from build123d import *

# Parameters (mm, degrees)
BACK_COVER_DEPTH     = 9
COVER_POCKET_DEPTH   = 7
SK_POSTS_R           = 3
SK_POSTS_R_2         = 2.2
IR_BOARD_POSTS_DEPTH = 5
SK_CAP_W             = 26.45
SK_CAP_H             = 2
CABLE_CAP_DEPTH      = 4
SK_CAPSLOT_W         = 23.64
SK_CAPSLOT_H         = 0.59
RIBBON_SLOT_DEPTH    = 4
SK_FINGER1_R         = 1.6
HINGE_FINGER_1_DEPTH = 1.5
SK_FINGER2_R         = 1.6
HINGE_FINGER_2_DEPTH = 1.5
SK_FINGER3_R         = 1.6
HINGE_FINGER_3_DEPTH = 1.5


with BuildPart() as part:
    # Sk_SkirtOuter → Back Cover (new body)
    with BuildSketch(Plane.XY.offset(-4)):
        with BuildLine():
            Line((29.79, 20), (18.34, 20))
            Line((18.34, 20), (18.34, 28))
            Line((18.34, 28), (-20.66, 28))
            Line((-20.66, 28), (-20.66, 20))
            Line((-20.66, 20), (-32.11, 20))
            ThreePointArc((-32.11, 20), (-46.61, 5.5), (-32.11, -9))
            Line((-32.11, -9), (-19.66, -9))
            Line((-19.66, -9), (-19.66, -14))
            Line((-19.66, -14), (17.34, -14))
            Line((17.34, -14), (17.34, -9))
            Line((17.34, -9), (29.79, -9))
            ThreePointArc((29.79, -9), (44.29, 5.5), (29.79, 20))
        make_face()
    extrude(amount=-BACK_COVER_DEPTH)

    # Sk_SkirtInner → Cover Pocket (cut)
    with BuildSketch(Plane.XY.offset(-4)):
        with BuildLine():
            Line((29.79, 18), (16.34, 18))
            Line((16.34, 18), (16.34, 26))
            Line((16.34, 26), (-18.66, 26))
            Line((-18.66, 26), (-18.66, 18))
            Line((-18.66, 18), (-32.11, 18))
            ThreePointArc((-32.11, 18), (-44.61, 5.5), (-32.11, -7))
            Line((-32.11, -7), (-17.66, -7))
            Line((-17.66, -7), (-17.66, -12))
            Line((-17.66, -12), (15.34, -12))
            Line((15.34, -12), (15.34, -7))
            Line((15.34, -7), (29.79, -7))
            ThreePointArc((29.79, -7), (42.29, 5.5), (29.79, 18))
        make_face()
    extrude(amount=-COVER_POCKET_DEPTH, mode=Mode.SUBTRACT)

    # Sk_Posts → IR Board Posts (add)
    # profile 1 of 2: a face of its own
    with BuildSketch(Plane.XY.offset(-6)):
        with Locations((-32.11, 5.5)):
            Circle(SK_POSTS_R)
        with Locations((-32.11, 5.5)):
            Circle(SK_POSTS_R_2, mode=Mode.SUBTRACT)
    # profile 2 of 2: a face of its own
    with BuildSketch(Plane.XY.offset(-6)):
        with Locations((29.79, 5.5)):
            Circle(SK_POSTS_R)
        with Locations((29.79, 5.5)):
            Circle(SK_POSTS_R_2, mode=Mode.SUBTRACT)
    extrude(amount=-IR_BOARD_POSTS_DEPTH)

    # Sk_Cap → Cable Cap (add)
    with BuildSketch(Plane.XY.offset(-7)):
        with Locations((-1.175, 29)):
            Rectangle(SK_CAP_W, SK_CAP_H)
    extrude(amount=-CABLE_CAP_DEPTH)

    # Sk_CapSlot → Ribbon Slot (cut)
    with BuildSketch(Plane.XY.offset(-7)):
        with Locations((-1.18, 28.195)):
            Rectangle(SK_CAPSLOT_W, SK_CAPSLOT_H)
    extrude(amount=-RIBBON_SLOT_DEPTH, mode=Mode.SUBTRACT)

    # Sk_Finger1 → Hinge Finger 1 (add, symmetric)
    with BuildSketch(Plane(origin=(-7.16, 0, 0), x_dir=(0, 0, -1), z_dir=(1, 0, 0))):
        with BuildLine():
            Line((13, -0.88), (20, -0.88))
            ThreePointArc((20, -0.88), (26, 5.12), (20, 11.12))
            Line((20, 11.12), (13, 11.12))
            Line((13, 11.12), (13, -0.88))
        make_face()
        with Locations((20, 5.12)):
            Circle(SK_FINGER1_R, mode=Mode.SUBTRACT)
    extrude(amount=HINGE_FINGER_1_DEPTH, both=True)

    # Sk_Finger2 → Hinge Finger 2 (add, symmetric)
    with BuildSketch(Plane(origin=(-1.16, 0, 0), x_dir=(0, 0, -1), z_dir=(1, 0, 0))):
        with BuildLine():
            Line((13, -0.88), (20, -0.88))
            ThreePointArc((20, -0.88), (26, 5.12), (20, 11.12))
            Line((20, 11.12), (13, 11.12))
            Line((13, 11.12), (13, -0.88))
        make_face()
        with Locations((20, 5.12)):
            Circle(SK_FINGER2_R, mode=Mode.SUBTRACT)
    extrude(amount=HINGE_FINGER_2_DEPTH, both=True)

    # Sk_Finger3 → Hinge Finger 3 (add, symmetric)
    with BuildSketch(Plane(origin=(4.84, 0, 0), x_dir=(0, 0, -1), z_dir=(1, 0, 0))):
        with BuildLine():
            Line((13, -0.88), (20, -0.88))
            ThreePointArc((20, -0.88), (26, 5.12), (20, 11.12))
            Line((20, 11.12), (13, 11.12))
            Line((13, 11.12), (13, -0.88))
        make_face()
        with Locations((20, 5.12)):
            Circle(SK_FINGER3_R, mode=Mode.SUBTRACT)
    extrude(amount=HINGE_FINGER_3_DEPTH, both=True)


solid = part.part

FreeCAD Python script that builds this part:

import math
import FreeCAD as App
import Part
import Sketcher
from FreeCAD import Vector


def add_polygon(sketch, points):
    """Adds a closed chain of lines whose ends are joined by coincident constraints."""
    first, n = sketch.GeometryCount, len(points)
    for a, b in zip(points, points[1:] + points[:1]):
        sketch.addGeometry(Part.LineSegment(App.Vector(*a, 0), App.Vector(*b, 0)), False)
    for i in range(n):
        sketch.addConstraint(Sketcher.Constraint("Coincident", first + i, 2, first + (i + 1) % n, 1))

doc = App.newDocument("Part")
params = doc.addObject("Spreadsheet::Sheet", "Params")
for row, (alias, value) in enumerate([
    ("sketch1_radius", "14.5 mm"),
    ("sketch1_width", "39 mm"),
    ("sketch1_width2", "37 mm"),
    ("sketch1_height", "8 mm"),
    ("sketch1_height2", "5 mm"),
    ("pad1_length", "9 mm"),
    ("sketch2_radius", "12.5 mm"),
    ("sketch2_width", "35 mm"),
    ("sketch2_width2", "33 mm"),
    ("sketch2_height", "8 mm"),
    ("sketch2_height2", "5 mm"),
    ("pocket1_length", "7 mm"),
    ("sketch3_diameter", "6 mm"),
    ("sketch3_diameter2", "4.4 mm"),
    ("pad2_length", "5 mm"),
    ("sketch4_height", "2 mm"),
    ("sketch4_width", "26.45 mm"),
    ("pad3_length", "4 mm"),
    ("sketch5_width", "23.64 mm"),
    ("sketch5_height", "0.59 mm"),
    ("pocket2_length", "4 mm"),
    ("sketch6_radius", "6 mm"),
    ("sketch6_diameter", "3.2 mm"),
    ("sketch6_height", "7 mm"),
    ("pad4_length", "3 mm"),
    ("sketch7_radius", "6 mm"),
    ("sketch7_diameter", "3.2 mm"),
    ("sketch7_height", "7 mm"),
    ("pad5_length", "3 mm"),
    ("sketch8_radius", "6 mm"),
    ("sketch8_diameter", "3.2 mm"),
    ("sketch8_height", "7 mm"),
    ("pad6_length", "3 mm"),
], start=1):
    params.set(f"A{row}", alias)
    params.set(f"B{row}", "=" + value)
    params.setAlias(f"B{row}", alias)

body = doc.addObject("PartDesign::Body", "Body")

# Sketch on XY plane
sketch1 = body.newObject("Sketcher::SketchObject", "Sketch")
sketch1.AttachmentSupport = (doc.getObject("XY_Plane"), [""])
sketch1.MapMode = "FlatFace"
sketch1.AttachmentOffset = App.Placement(Vector(0, 0, -4), App.Rotation())
sketch1.addGeometry([
    Part.LineSegment(Vector(30, 20, 0), Vector(18, 20, 0)),  # 0
    Part.LineSegment(Vector(18, 20, 0), Vector(18, 28, 0)),  # 1
    Part.LineSegment(Vector(18, 28, 0), Vector(-21, 28, 0)),  # 2
    Part.LineSegment(Vector(-21, 28, 0), Vector(-21, 20, 0)),  # 3
    Part.LineSegment(Vector(-21, 20, 0), Vector(-32, 20, 0)),  # 4
    Part.ArcOfCircle(Part.Circle(Vector(-32, 6, 0), Vector(0, 0, 1), 14), math.radians(90), math.radians(270)),  # 5
    Part.LineSegment(Vector(-32, -9, 0), Vector(-20, -9, 0)),  # 6
    Part.LineSegment(Vector(-20, -9, 0), Vector(-20, -14, 0)),  # 7
    Part.LineSegment(Vector(-20, -14, 0), Vector(17, -14, 0)),  # 8
    Part.LineSegment(Vector(17, -14, 0), Vector(17, -9, 0)),  # 9
    Part.LineSegment(Vector(17, -9, 0), Vector(30, -9, 0)),  # 10
    Part.ArcOfCircle(Part.Circle(Vector(30, 6, 0), Vector(0, 0, 1), 14), math.radians(-90), math.radians(90)),  # 11
], False)
sketch1.addConstraint([
    Sketcher.Constraint("Coincident", 0, 2, 1, 1),
    Sketcher.Constraint("Coincident", 1, 2, 2, 1),
    Sketcher.Constraint("Coincident", 2, 2, 3, 1),
    Sketcher.Constraint("Coincident", 3, 2, 4, 1),
    Sketcher.Constraint("Tangent", 4, 2, 5, 1),
    Sketcher.Constraint("Tangent", 5, 2, 6, 1),
    Sketcher.Constraint("Coincident", 6, 2, 7, 1),
    Sketcher.Constraint("Coincident", 7, 2, 8, 1),
    Sketcher.Constraint("Coincident", 8, 2, 9, 1),
    Sketcher.Constraint("Coincident", 9, 2, 10, 1),
    Sketcher.Constraint("Tangent", 10, 2, 11, 1),
    Sketcher.Constraint("Tangent", 11, 2, 0, 1),
    Sketcher.Constraint("Horizontal", 0),
    Sketcher.Constraint("Vertical", 1),
    Sketcher.Constraint("Horizontal", 2),
    Sketcher.Constraint("Vertical", 3),
    Sketcher.Constraint("Horizontal", 4),
    Sketcher.Constraint("Horizontal", 6),
    Sketcher.Constraint("Vertical", 7),
    Sketcher.Constraint("Horizontal", 8),
    Sketcher.Constraint("Vertical", 9),
    Sketcher.Constraint("Horizontal", 10),
    Sketcher.Constraint("Equal", 5, 11),
    Sketcher.Constraint("Horizontal", 5, 3, 11, 3),
    Sketcher.Constraint("Equal", 0, 4),
    Sketcher.Constraint("Equal", 6, 10),
    Sketcher.Constraint("Radius", 5, 14.5),
    Sketcher.Constraint("DistanceX", 2, 2, 2, 1, 39.0),
    Sketcher.Constraint("DistanceX", 8, 1, 8, 2, 37.0),
    Sketcher.Constraint("DistanceY", 1, 1, 1, 2, 8.0),
    Sketcher.Constraint("DistanceY", 7, 2, 7, 1, 5.0),
    Sketcher.Constraint("DistanceY", -1, 1, 0, 2, 20.0),
    Sketcher.Constraint("DistanceX", 0, 2, 0, 1, 11.45),
    Sketcher.Constraint("DistanceX", 5, 3, -1, 1, 32.11),
])
sketch1.setExpression("Constraints[26]", "Params.sketch1_radius")
sketch1.setExpression("Constraints[27]", "Params.sketch1_width")
sketch1.setExpression("Constraints[28]", "Params.sketch1_width2")
sketch1.setExpression("Constraints[29]", "Params.sketch1_height")
sketch1.setExpression("Constraints[30]", "Params.sketch1_height2")
pad1 = body.newObject("PartDesign::Pad", "Pad")
pad1.Profile = sketch1
pad1.setExpression("Length", "Params.pad1_length")
pad1.Reversed = True

# Sketch on XY plane
sketch2 = body.newObject("Sketcher::SketchObject", "Sketch001")
sketch2.AttachmentSupport = (doc.getObject("XY_Plane"), [""])
sketch2.MapMode = "FlatFace"
sketch2.AttachmentOffset = App.Placement(Vector(0, 0, -4), App.Rotation())
sketch2.addGeometry([
    Part.LineSegment(Vector(30, 18, 0), Vector(16, 18, 0)),  # 0
    Part.LineSegment(Vector(16, 18, 0), Vector(16, 26, 0)),  # 1
    Part.LineSegment(Vector(16, 26, 0), Vector(-19, 26, 0)),  # 2
    Part.LineSegment(Vector(-19, 26, 0), Vector(-19, 18, 0)),  # 3
    Part.LineSegment(Vector(-19, 18, 0), Vector(-32, 18, 0)),  # 4
    Part.ArcOfCircle(Part.Circle(Vector(-32, 6, 0), Vector(0, 0, 1), 12), math.radians(90), math.radians(270)),  # 5
    Part.LineSegment(Vector(-32, -7, 0), Vector(-18, -7, 0)),  # 6
    Part.LineSegment(Vector(-18, -7, 0), Vector(-18, -12, 0)),  # 7
    Part.LineSegment(Vector(-18, -12, 0), Vector(15, -12, 0)),  # 8
    Part.LineSegment(Vector(15, -12, 0), Vector(15, -7, 0)),  # 9
    Part.LineSegment(Vector(15, -7, 0), Vector(30, -7, 0)),  # 10
    Part.ArcOfCircle(Part.Circle(Vector(30, 6, 0), Vector(0, 0, 1), 12), math.radians(-90), math.radians(90)),  # 11
], False)
sketch2.addConstraint([
    Sketcher.Constraint("Coincident", 0, 2, 1, 1),
    Sketcher.Constraint("Coincident", 1, 2, 2, 1),
    Sketcher.Constraint("Coincident", 2, 2, 3, 1),
    Sketcher.Constraint("Coincident", 3, 2, 4, 1),
    Sketcher.Constraint("Tangent", 4, 2, 5, 1),
    Sketcher.Constraint("Tangent", 5, 2, 6, 1),
    Sketcher.Constraint("Coincident", 6, 2, 7, 1),
    Sketcher.Constraint("Coincident", 7, 2, 8, 1),
    Sketcher.Constraint("Coincident", 8, 2, 9, 1),
    Sketcher.Constraint("Coincident", 9, 2, 10, 1),
    Sketcher.Constraint("Tangent", 10, 2, 11, 1),
    Sketcher.Constraint("Tangent", 11, 2, 0, 1),
    Sketcher.Constraint("Horizontal", 0),
    Sketcher.Constraint("Vertical", 1),
    Sketcher.Constraint("Horizontal", 2),
    Sketcher.Constraint("Vertical", 3),
    Sketcher.Constraint("Horizontal", 4),
    Sketcher.Constraint("Horizontal", 6),
    Sketcher.Constraint("Vertical", 7),
    Sketcher.Constraint("Horizontal", 8),
    Sketcher.Constraint("Vertical", 9),
    Sketcher.Constraint("Horizontal", 10),
    Sketcher.Constraint("Equal", 5, 11),
    Sketcher.Constraint("Horizontal", 5, 3, 11, 3),
    Sketcher.Constraint("Equal", 0, 4),
    Sketcher.Constraint("Equal", 6, 10),
    Sketcher.Constraint("Radius", 5, 12.5),
    Sketcher.Constraint("DistanceX", 2, 2, 2, 1, 35.0),
    Sketcher.Constraint("DistanceX", 8, 1, 8, 2, 33.0),
    Sketcher.Constraint("DistanceY", 1, 1, 1, 2, 8.0),
    Sketcher.Constraint("DistanceY", 7, 2, 7, 1, 5.0),
    Sketcher.Constraint("DistanceY", -1, 1, 0, 2, 18.0),
    Sketcher.Constraint("DistanceX", 0, 2, 0, 1, 13.45),
    Sketcher.Constraint("DistanceX", 5, 3, -1, 1, 32.11),
])
sketch2.setExpression("Constraints[26]", "Params.sketch2_radius")
sketch2.setExpression("Constraints[27]", "Params.sketch2_width")
sketch2.setExpression("Constraints[28]", "Params.sketch2_width2")
sketch2.setExpression("Constraints[29]", "Params.sketch2_height")
sketch2.setExpression("Constraints[30]", "Params.sketch2_height2")
pocket1 = body.newObject("PartDesign::Pocket", "Pocket")
pocket1.Profile = sketch2
pocket1.setExpression("Length", "Params.pocket1_length")

# Sketch on XY plane
sketch3 = body.newObject("Sketcher::SketchObject", "Sketch002")
sketch3.AttachmentSupport = (doc.getObject("XY_Plane"), [""])
sketch3.MapMode = "FlatFace"
sketch3.AttachmentOffset = App.Placement(Vector(0, 0, -6), App.Rotation())
sketch3.addGeometry([
    Part.Circle(Vector(-32.1, 5.5, 0), Vector(0, 0, 1), 3),
    Part.Circle(Vector(-32.1, 5.5, 0), Vector(0, 0, 1), 2.2),
    Part.Circle(Vector(29.8, 5.5, 0), Vector(0, 0, 1), 3),
    Part.Circle(Vector(29.8, 5.5, 0), Vector(0, 0, 1), 2.2),
], False)
sketch3.addConstraint([
    Sketcher.Constraint("Coincident", 1, 3, 0, 3),
    Sketcher.Constraint("Coincident", 3, 3, 2, 3),
    Sketcher.Constraint("Equal", 0, 2),
    Sketcher.Constraint("Equal", 1, 3),
    Sketcher.Constraint("Horizontal", 1, 3, 2, 3),
    Sketcher.Constraint("Diameter", 0, 6.0),
    Sketcher.Constraint("Diameter", 1, 4.4),
    Sketcher.Constraint("DistanceY", -1, 1, 0, 3, 5.5),
    Sketcher.Constraint("DistanceX", 0, 3, 2, 3, 61.9),
    Sketcher.Constraint("DistanceX", 0, 3, -1, 1, 32.11),
])
sketch3.setExpression("Constraints[5]", "Params.sketch3_diameter")
sketch3.setExpression("Constraints[6]", "Params.sketch3_diameter2")
pad2 = body.newObject("PartDesign::Pad", "Pad001")
pad2.Profile = sketch3
pad2.setExpression("Length", "Params.pad2_length")
pad2.Reversed = True

# Sketch on XY plane
sketch4 = body.newObject("Sketcher::SketchObject", "Sketch003")
sketch4.AttachmentSupport = (doc.getObject("XY_Plane"), [""])
sketch4.MapMode = "FlatFace"
sketch4.AttachmentOffset = App.Placement(Vector(0, 0, -7), App.Rotation())
add_polygon(sketch4, [(-14.4, 30), (-14.4, 28), (12.1, 28), (12.1, 30)])  # lines 0-3
sketch4.addConstraint([
    Sketcher.Constraint("Vertical", 0),
    Sketcher.Constraint("Horizontal", 1),
    Sketcher.Constraint("Vertical", 2),
    Sketcher.Constraint("Horizontal", 3),
    Sketcher.Constraint("DistanceY", 0, 2, 0, 1, 2.0),
    Sketcher.Constraint("DistanceY", -1, 1, 0, 2, 28.0),
    Sketcher.Constraint("DistanceX", 1, 1, 1, 2, 26.45),
    Sketcher.Constraint("DistanceX", 0, 2, -1, 1, 14.4),
])
sketch4.setExpression("Constraints[8]", "Params.sketch4_height")
sketch4.setExpression("Constraints[10]", "Params.sketch4_width")
pad3 = body.newObject("PartDesign::Pad", "Pad002")
pad3.Profile = sketch4
pad3.setExpression("Length", "Params.pad3_length")
pad3.Reversed = True

# Sketch on XY plane
sketch5 = body.newObject("Sketcher::SketchObject", "Sketch004")
sketch5.AttachmentSupport = (doc.getObject("XY_Plane"), [""])
sketch5.MapMode = "FlatFace"
sketch5.AttachmentOffset = App.Placement(Vector(0, 0, -7), App.Rotation())
add_polygon(sketch5, [(-13, 28.5), (-13, 27.9), (10.6, 27.9), (10.6, 28.5)])  # lines 0-3
sketch5.addConstraint([
    Sketcher.Constraint("Vertical", 0),
    Sketcher.Constraint("Horizontal", 1),
    Sketcher.Constraint("Vertical", 2),
    Sketcher.Constraint("Horizontal", 3),
    Sketcher.Constraint("DistanceX", 0, 2, -1, 1, 13.0),
    Sketcher.Constraint("DistanceX", 1, 1, 1, 2, 23.64),
    Sketcher.Constraint("DistanceY", 0, 2, 0, 1, 0.59),
    Sketcher.Constraint("DistanceY", -1, 1, 0, 2, 27.9),
])
sketch5.setExpression("Constraints[9]", "Params.sketch5_width")
sketch5.setExpression("Constraints[10]", "Params.sketch5_height")
pocket2 = body.newObject("PartDesign::Pocket", "Pocket001")
pocket2.Profile = sketch5
pocket2.setExpression("Length", "Params.pocket2_length")

# Sketch on YZ plane
sketch6 = body.newObject("Sketcher::SketchObject", "Sketch005")
sketch6.AttachmentSupport = (doc.getObject("YZ_Plane"), [""])
sketch6.MapMode = "FlatFace"
sketch6.AttachmentOffset = App.Placement(Vector(0, 0, -7.16), App.Rotation())
sketch6.addGeometry([
    Part.LineSegment(Vector(-0.9, -13, 0), Vector(-0.9, -20, 0)),  # 0
    Part.ArcOfCircle(Part.Circle(Vector(5.1, -20, 0), Vector(0, 0, 1), 6), math.radians(180), math.radians(360)),  # 1
    Part.LineSegment(Vector(11.1, -20, 0), Vector(11.1, -13, 0)),  # 2
    Part.LineSegment(Vector(11.1, -13, 0), Vector(-0.9, -13, 0)),  # 3
    Part.Circle(Vector(5.1, -20, 0), Vector(0, 0, 1), 1.6),  # 4
], False)
sketch6.addConstraint([
    Sketcher.Constraint("Tangent", 0, 2, 1, 1),
    Sketcher.Constraint("Tangent", 1, 2, 2, 1),
    Sketcher.Constraint("Coincident", 2, 2, 3, 1),
    Sketcher.Constraint("Coincident", 3, 2, 0, 1),
    Sketcher.Constraint("Vertical", 0),
    Sketcher.Constraint("Vertical", 2),
    Sketcher.Constraint("Horizontal", 3),
    Sketcher.Constraint("Coincident", 4, 3, 1, 3),
    Sketcher.Constraint("Radius", 1, 6.0),
    Sketcher.Constraint("Diameter", 4, 3.2),
    Sketcher.Constraint("DistanceY", 0, 2, 0, 1, 7.0),
    Sketcher.Constraint("DistanceY", 1, 3, -1, 1, 20.0),
    Sketcher.Constraint("DistanceX", -1, 1, 1, 3, 5.12),
])
sketch6.setExpression("Constraints[8]", "Params.sketch6_radius")
sketch6.setExpression("Constraints[9]", "Params.sketch6_diameter")
sketch6.setExpression("Constraints[10]", "Params.sketch6_height")
pad4 = body.newObject("PartDesign::Pad", "Pad003")
pad4.Profile = sketch6
pad4.setExpression("Length", "Params.pad4_length")
pad4.Midplane = True

# Sketch on YZ plane
sketch7 = body.newObject("Sketcher::SketchObject", "Sketch006")
sketch7.AttachmentSupport = (doc.getObject("YZ_Plane"), [""])
sketch7.MapMode = "FlatFace"
sketch7.AttachmentOffset = App.Placement(Vector(0, 0, -1.16), App.Rotation())
sketch7.addGeometry([
    Part.LineSegment(Vector(-0.9, -13, 0), Vector(-0.9, -20, 0)),  # 0
    Part.ArcOfCircle(Part.Circle(Vector(5.1, -20, 0), Vector(0, 0, 1), 6), math.radians(180), math.radians(360)),  # 1
    Part.LineSegment(Vector(11.1, -20, 0), Vector(11.1, -13, 0)),  # 2
    Part.LineSegment(Vector(11.1, -13, 0), Vector(-0.9, -13, 0)),  # 3
    Part.Circle(Vector(5.1, -20, 0), Vector(0, 0, 1), 1.6),  # 4
], False)
sketch7.addConstraint([
    Sketcher.Constraint("Tangent", 0, 2, 1, 1),
    Sketcher.Constraint("Tangent", 1, 2, 2, 1),
    Sketcher.Constraint("Coincident", 2, 2, 3, 1),
    Sketcher.Constraint("Coincident", 3, 2, 0, 1),
    Sketcher.Constraint("Vertical", 0),
    Sketcher.Constraint("Vertical", 2),
    Sketcher.Constraint("Horizontal", 3),
    Sketcher.Constraint("Coincident", 4, 3, 1, 3),
    Sketcher.Constraint("Radius", 1, 6.0),
    Sketcher.Constraint("Diameter", 4, 3.2),
    Sketcher.Constraint("DistanceY", 0, 2, 0, 1, 7.0),
    Sketcher.Constraint("DistanceY", 1, 3, -1, 1, 20.0),
    Sketcher.Constraint("DistanceX", -1, 1, 1, 3, 5.12),
])
sketch7.setExpression("Constraints[8]", "Params.sketch7_radius")
sketch7.setExpression("Constraints[9]", "Params.sketch7_diameter")
sketch7.setExpression("Constraints[10]", "Params.sketch7_height")
pad5 = body.newObject("PartDesign::Pad", "Pad004")
pad5.Profile = sketch7
pad5.setExpression("Length", "Params.pad5_length")
pad5.Midplane = True

# Sketch on YZ plane
sketch8 = body.newObject("Sketcher::SketchObject", "Sketch007")
sketch8.AttachmentSupport = (doc.getObject("YZ_Plane"), [""])
sketch8.MapMode = "FlatFace"
sketch8.AttachmentOffset = App.Placement(Vector(0, 0, 4.84), App.Rotation())
sketch8.addGeometry([
    Part.LineSegment(Vector(-0.9, -13, 0), Vector(-0.9, -20, 0)),  # 0
    Part.ArcOfCircle(Part.Circle(Vector(5.1, -20, 0), Vector(0, 0, 1), 6), math.radians(180), math.radians(360)),  # 1
    Part.LineSegment(Vector(11.1, -20, 0), Vector(11.1, -13, 0)),  # 2
    Part.LineSegment(Vector(11.1, -13, 0), Vector(-0.9, -13, 0)),  # 3
    Part.Circle(Vector(5.1, -20, 0), Vector(0, 0, 1), 1.6),  # 4
], False)
sketch8.addConstraint([
    Sketcher.Constraint("Tangent", 0, 2, 1, 1),
    Sketcher.Constraint("Tangent", 1, 2, 2, 1),
    Sketcher.Constraint("Coincident", 2, 2, 3, 1),
    Sketcher.Constraint("Coincident", 3, 2, 0, 1),
    Sketcher.Constraint("Vertical", 0),
    Sketcher.Constraint("Vertical", 2),
    Sketcher.Constraint("Horizontal", 3),
    Sketcher.Constraint("Coincident", 4, 3, 1, 3),
    Sketcher.Constraint("Radius", 1, 6.0),
    Sketcher.Constraint("Diameter", 4, 3.2),
    Sketcher.Constraint("DistanceY", 0, 2, 0, 1, 7.0),
    Sketcher.Constraint("DistanceY", 1, 3, -1, 1, 20.0),
    Sketcher.Constraint("DistanceX", -1, 1, 1, 3, 5.12),
])
sketch8.setExpression("Constraints[8]", "Params.sketch8_radius")
sketch8.setExpression("Constraints[9]", "Params.sketch8_diameter")
sketch8.setExpression("Constraints[10]", "Params.sketch8_height")
pad6 = body.newObject("PartDesign::Pad", "Pad005")
pad6.Profile = sketch8
pad6.setExpression("Length", "Params.pad6_length")
pad6.Midplane = True

doc.recompute()
